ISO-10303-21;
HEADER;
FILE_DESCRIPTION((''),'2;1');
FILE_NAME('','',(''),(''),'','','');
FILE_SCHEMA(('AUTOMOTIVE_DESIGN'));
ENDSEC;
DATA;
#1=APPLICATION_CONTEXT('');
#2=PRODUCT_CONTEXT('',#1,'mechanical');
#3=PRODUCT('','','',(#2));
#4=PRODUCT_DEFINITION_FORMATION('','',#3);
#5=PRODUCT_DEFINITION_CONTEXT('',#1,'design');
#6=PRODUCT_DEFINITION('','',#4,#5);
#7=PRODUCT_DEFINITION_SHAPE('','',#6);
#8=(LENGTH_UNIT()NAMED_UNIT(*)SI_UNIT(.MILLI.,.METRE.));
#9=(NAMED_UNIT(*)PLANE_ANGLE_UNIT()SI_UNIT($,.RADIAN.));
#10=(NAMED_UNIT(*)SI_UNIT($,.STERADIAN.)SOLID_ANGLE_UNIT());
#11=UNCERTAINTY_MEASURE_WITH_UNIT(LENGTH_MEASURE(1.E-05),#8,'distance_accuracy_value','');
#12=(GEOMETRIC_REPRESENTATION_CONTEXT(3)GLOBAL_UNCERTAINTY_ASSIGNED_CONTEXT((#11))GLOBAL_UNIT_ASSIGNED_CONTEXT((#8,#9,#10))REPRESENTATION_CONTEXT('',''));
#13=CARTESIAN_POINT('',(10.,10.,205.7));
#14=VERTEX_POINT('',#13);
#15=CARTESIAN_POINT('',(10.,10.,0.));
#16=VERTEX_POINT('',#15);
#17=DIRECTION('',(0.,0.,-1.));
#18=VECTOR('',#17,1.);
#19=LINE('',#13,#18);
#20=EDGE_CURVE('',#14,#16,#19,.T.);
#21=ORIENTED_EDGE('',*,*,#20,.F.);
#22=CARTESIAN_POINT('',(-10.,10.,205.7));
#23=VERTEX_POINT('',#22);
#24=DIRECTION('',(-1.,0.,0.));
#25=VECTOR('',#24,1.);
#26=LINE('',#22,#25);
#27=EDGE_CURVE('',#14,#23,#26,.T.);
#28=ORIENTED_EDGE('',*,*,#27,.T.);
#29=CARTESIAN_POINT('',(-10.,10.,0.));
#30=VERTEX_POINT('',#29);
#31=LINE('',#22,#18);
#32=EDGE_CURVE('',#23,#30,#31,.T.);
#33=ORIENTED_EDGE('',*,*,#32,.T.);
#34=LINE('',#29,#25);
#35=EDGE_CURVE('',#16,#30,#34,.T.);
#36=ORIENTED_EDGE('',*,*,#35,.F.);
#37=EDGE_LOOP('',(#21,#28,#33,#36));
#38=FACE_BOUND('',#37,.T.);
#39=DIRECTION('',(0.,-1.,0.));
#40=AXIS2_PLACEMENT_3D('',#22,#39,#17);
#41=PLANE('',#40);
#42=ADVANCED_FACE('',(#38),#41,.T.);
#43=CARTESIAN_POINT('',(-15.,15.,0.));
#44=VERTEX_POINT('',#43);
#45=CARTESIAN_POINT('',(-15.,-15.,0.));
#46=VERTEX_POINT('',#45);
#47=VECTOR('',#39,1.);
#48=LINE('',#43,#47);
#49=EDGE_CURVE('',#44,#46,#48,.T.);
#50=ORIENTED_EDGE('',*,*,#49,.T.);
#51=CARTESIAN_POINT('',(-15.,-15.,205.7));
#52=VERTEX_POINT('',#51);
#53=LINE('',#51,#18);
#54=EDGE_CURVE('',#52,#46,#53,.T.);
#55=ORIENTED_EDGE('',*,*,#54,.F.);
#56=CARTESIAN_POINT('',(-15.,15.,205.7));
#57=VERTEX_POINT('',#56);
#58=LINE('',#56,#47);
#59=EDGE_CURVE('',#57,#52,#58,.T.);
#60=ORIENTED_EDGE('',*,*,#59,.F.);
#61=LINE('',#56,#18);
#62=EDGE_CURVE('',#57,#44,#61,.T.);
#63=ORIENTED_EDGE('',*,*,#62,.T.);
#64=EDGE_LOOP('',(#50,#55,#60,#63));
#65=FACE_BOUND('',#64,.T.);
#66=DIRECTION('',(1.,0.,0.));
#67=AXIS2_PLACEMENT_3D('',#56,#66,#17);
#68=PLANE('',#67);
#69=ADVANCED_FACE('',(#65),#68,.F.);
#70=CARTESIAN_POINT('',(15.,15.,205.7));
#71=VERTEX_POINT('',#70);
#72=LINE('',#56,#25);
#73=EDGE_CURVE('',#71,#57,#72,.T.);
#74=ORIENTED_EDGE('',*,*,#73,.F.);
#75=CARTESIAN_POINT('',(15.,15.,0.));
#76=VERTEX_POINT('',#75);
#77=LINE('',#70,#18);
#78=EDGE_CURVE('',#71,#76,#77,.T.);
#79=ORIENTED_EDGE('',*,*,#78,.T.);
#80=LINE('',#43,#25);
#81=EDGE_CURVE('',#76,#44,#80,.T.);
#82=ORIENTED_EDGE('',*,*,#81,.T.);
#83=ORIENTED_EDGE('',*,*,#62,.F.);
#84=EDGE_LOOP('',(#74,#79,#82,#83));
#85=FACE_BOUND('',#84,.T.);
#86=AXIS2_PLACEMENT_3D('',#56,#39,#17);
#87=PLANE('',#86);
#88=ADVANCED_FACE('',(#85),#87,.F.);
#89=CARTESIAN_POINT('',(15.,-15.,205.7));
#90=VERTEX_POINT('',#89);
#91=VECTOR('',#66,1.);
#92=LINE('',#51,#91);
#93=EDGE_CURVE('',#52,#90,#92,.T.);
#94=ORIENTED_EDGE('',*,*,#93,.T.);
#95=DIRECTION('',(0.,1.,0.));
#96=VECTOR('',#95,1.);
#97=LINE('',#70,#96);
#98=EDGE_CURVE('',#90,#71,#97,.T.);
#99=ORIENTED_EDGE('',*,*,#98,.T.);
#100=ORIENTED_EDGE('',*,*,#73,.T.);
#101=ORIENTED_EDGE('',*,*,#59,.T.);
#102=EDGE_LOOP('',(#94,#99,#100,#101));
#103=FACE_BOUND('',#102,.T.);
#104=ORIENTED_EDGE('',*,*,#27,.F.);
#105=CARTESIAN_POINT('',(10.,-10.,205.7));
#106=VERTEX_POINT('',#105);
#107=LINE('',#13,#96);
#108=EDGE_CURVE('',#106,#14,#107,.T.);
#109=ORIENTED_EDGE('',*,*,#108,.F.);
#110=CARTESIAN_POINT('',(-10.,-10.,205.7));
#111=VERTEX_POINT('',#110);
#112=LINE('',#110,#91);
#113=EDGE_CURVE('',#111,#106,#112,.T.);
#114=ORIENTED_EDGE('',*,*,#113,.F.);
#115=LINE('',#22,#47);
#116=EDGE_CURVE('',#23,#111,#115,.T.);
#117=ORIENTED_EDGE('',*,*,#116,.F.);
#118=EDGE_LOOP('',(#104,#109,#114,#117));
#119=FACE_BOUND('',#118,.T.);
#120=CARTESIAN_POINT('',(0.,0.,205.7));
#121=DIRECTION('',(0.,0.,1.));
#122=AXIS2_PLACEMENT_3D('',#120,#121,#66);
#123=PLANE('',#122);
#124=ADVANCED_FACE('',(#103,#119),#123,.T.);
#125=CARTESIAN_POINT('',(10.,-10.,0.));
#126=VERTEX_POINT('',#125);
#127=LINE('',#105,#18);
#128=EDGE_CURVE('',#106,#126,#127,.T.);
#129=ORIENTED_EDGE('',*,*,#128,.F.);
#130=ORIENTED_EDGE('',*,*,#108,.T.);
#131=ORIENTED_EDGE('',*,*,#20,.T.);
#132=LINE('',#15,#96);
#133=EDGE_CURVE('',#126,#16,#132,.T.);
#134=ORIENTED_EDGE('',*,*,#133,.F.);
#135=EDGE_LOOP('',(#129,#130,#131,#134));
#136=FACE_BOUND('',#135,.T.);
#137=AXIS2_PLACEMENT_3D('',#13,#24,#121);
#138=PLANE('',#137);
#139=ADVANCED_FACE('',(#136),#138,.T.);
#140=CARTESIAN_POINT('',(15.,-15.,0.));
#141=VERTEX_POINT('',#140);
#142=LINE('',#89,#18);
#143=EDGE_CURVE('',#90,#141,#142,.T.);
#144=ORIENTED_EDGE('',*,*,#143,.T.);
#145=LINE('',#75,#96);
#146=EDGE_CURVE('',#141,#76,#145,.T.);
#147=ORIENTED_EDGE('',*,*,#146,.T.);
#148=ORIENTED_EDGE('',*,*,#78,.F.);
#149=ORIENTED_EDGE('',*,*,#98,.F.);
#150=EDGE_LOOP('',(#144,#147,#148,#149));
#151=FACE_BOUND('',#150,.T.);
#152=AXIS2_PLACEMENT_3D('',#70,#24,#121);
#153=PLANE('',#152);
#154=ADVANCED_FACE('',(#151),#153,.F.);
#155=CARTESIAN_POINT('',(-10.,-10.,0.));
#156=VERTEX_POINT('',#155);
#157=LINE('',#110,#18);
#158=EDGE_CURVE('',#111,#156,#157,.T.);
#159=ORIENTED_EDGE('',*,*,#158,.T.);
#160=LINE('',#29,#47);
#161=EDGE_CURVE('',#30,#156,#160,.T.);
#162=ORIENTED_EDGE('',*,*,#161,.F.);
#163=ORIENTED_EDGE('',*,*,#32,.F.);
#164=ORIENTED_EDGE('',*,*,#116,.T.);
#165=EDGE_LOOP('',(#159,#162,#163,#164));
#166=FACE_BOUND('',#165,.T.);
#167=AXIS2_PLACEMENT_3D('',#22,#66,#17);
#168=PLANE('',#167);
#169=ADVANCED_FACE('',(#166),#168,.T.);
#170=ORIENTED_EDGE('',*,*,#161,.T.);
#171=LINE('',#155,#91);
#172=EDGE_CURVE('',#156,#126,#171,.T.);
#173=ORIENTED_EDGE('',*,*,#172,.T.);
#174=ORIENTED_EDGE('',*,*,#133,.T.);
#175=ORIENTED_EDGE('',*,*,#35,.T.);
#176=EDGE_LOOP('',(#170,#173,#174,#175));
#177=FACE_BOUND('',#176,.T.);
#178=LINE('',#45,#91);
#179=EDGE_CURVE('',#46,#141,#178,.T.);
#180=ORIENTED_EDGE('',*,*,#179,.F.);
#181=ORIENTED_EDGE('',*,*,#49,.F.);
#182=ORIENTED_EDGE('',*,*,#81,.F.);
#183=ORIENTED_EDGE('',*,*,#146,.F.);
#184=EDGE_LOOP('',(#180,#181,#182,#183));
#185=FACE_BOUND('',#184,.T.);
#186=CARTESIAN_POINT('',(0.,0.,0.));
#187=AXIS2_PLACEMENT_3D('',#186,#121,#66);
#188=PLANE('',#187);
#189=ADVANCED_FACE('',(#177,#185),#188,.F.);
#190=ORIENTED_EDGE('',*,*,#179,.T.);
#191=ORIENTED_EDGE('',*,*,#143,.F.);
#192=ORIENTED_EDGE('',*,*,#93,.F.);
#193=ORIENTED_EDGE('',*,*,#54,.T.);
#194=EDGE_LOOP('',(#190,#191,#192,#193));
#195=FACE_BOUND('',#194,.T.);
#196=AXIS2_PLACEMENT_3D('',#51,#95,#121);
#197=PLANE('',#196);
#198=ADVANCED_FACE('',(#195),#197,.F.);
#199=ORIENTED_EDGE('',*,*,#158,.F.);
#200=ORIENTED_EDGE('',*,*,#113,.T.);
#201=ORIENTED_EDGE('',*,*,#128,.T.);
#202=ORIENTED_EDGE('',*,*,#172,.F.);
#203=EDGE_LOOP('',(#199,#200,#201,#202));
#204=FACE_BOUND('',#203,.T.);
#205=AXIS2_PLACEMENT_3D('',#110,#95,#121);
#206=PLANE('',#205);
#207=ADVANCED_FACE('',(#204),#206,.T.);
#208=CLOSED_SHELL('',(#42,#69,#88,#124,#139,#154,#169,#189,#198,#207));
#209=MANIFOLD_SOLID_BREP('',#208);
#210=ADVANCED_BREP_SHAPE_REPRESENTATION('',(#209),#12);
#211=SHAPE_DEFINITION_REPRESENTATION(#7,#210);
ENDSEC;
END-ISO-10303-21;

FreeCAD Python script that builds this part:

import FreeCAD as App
import Part
import Sketcher

V = App.Vector


def add_polygon(sketch, points):
    """Adds a closed chain of lines whose ends are joined by coincident constraints."""
    first, n = sketch.GeometryCount, len(points)
    for a, b in zip(points, points[1:] + points[:1]):
        sketch.addGeometry(Part.LineSegment(App.Vector(*a, 0), App.Vector(*b, 0)), False)
    for i in range(n):
        sketch.addConstraint(Sketcher.Constraint("Coincident", first + i, 2, first + (i + 1) % n, 1))

doc = App.newDocument("Part")
body = doc.addObject("PartDesign::Body", "Body")

sketch1 = body.newObject("Sketcher::SketchObject", "Sketch")
sketch1.AttachmentSupport = (doc.getObject("XY_Plane"), [""])
sketch1.MapMode = "FlatFace"
add_polygon(sketch1, [(-15, 15), (-15, -15), (15, -15), (15, 15)])
add_polygon(sketch1, [(10, -10), (-10, -10), (-10, 10), (10, 10)])
sketch1.addConstraint(Sketcher.Constraint("Vertical", 0))
sketch1.addConstraint(Sketcher.Constraint("Horizontal", 1))
sketch1.addConstraint(Sketcher.Constraint("Vertical", 2))
sketch1.addConstraint(Sketcher.Constraint("Horizontal", 3))
sketch1.addConstraint(Sketcher.Constraint("Horizontal", 4))
sketch1.addConstraint(Sketcher.Constraint("Vertical", 5))
sketch1.addConstraint(Sketcher.Constraint("Horizontal", 6))
sketch1.addConstraint(Sketcher.Constraint("Vertical", 7))
sketch1.addConstraint(Sketcher.Constraint("Symmetric", 0, 2, 2, 2, -1, 1))
sketch1.addConstraint(Sketcher.Constraint("Symmetric", 4, 2, 6, 2, -1, 1))
sketch1.addConstraint(Sketcher.Constraint("Equal", 3, 0))
sketch1.addConstraint(Sketcher.Constraint("Equal", 6, 5))
sketch1.addConstraint(Sketcher.Constraint("DistanceX", 1, 1, 1, 2, 30.0))
sketch1.addConstraint(Sketcher.Constraint("DistanceX", 4, 2, 4, 1, 20.0))
pad1 = body.newObject("PartDesign::Pad", "Pad")
pad1.Profile = sketch1
pad1.Length = 205.7

doc.recompute()
